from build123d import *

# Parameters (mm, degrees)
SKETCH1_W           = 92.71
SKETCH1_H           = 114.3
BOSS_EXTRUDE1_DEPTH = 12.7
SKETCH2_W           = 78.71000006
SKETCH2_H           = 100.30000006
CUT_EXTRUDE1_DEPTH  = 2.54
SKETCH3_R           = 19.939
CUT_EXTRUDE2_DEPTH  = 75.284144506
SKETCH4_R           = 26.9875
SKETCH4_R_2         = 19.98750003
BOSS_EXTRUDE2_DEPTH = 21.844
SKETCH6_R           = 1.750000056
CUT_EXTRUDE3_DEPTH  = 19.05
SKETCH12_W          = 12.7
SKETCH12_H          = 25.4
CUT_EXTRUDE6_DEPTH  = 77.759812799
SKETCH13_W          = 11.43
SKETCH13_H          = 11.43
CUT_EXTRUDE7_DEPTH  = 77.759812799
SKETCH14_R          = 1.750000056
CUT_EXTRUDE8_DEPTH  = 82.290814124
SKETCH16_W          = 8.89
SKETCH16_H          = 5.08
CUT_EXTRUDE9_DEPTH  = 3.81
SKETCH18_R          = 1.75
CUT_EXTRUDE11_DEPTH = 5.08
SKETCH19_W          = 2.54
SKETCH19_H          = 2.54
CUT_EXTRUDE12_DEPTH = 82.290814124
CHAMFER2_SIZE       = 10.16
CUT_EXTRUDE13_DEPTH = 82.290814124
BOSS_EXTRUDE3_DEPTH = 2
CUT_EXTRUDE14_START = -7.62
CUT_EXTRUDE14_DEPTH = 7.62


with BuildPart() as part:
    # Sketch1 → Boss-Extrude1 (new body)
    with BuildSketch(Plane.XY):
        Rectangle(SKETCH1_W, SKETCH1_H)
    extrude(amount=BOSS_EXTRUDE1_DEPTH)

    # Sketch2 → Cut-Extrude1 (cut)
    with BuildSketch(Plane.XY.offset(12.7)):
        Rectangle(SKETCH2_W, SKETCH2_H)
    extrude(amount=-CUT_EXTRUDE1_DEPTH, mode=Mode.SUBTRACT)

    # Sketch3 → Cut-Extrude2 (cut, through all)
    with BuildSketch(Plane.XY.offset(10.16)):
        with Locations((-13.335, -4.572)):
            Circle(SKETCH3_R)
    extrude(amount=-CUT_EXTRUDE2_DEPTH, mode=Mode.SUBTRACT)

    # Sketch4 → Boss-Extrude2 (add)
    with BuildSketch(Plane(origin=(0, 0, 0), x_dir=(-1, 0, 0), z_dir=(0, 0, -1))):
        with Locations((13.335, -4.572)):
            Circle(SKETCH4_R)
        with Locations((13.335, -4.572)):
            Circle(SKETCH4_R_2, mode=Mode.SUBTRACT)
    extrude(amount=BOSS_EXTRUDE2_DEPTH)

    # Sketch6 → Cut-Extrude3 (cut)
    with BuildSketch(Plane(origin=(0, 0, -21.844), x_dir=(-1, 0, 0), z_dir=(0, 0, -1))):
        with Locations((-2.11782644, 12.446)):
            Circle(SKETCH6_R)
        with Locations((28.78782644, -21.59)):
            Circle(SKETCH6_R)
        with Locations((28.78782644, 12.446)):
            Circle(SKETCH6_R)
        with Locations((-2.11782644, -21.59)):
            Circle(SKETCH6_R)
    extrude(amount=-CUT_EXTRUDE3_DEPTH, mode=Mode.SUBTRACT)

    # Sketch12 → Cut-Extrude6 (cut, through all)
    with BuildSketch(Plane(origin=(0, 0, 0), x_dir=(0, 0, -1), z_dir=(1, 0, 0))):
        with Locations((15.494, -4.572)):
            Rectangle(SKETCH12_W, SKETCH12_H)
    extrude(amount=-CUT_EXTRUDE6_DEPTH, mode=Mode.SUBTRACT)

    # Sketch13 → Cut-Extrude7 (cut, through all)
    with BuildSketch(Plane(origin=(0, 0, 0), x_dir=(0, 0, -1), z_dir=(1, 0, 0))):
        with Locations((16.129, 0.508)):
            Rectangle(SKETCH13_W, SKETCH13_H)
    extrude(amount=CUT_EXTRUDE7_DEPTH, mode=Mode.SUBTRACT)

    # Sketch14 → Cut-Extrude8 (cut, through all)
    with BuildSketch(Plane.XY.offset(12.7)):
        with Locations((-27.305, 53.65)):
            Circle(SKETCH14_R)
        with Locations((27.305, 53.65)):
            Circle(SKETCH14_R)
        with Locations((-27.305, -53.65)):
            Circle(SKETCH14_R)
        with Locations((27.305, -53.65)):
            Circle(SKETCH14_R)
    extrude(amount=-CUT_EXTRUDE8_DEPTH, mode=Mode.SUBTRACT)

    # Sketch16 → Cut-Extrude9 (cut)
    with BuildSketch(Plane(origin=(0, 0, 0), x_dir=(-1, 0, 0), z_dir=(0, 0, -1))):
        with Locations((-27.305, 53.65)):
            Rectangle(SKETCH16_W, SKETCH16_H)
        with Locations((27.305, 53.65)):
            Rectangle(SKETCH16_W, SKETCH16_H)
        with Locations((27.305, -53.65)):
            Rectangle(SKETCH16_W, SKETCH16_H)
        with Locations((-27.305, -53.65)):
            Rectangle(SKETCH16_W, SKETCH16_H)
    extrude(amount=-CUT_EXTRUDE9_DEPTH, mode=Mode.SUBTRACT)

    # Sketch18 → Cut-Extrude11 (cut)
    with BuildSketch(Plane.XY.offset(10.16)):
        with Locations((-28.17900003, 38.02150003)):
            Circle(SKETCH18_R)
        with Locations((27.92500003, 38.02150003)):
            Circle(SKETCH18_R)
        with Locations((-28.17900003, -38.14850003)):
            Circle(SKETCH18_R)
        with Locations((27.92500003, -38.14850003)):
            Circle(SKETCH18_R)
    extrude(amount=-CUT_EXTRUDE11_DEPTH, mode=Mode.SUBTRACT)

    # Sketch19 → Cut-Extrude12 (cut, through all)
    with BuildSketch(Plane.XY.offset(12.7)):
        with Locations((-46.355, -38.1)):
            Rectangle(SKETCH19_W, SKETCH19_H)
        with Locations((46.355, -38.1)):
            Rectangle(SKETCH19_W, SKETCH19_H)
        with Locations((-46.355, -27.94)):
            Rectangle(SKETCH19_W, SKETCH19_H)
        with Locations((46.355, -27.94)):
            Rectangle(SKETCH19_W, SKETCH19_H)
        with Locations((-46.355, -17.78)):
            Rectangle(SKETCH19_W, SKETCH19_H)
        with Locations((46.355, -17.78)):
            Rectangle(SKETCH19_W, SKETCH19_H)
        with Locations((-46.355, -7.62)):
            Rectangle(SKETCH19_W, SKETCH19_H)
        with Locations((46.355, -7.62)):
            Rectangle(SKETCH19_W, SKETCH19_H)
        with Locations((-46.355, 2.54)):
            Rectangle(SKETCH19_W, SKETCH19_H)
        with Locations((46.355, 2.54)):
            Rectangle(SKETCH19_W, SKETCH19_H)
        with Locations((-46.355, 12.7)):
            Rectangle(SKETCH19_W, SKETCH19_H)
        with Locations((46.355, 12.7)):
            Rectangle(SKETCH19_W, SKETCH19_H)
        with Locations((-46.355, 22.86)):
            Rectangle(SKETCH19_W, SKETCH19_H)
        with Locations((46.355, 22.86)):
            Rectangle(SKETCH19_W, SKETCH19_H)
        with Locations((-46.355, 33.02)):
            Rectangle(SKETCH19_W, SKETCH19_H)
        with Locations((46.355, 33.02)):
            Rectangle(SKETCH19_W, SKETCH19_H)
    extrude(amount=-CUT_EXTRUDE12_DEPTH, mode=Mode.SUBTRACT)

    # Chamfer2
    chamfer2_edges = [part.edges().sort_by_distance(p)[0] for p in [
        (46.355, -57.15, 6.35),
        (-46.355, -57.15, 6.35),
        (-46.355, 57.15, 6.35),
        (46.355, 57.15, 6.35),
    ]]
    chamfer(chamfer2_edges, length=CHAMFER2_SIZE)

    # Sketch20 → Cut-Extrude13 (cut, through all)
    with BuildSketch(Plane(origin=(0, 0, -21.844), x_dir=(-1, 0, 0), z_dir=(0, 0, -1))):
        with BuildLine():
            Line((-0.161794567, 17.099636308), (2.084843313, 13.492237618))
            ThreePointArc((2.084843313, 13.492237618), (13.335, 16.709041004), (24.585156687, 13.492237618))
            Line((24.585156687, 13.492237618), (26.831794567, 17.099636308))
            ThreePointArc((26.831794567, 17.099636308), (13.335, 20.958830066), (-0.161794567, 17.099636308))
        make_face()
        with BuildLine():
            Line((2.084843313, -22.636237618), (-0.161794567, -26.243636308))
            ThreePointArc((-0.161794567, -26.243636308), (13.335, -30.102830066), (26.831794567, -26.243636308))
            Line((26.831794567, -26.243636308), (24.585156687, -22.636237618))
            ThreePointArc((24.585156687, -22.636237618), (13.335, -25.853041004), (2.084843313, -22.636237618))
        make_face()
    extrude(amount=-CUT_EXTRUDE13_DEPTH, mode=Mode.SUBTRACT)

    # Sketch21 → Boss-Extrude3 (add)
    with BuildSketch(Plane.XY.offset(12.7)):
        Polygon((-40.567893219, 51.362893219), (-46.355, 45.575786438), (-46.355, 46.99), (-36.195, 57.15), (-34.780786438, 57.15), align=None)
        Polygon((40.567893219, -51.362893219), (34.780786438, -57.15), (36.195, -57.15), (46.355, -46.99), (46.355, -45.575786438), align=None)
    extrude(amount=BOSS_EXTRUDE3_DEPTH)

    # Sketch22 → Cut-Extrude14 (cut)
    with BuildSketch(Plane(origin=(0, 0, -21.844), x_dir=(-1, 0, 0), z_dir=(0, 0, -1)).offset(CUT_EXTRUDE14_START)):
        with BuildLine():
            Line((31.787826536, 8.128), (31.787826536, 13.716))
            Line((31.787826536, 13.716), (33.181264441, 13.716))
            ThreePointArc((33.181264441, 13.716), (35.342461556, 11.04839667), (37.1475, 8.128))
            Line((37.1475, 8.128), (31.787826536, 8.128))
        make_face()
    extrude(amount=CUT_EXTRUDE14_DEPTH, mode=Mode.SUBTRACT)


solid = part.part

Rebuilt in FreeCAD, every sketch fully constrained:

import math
import FreeCAD as App
import Part
import Sketcher

V = App.Vector
Q = App.Units.Quantity


def edges_at(feature, points):
    """Names of the edges that pass closest to the given points."""
    edges = feature.Shape.Edges
    near = lambda p: min(range(len(edges)), key=lambda i: edges[i].distToShape(Part.Vertex(*p))[0])
    return sorted({f"Edge{near(p) + 1}" for p in points})


def add_polygon(sketch, points):
    """Adds a closed chain of lines whose ends are joined by coincident constraints."""
    first, n = sketch.GeometryCount, len(points)
    for a, b in zip(points, points[1:] + points[:1]):
        sketch.addGeometry(Part.LineSegment(App.Vector(*a, 0), App.Vector(*b, 0)), False)
    for i in range(n):
        sketch.addConstraint(Sketcher.Constraint("Coincident", first + i, 2, first + (i + 1) % n, 1))

doc = App.newDocument("Part")
body = doc.addObject("PartDesign::Body", "Body")

# Sketch on XY plane
sketch1 = body.newObject("Sketcher::SketchObject", "Sketch")
sketch1.AttachmentSupport = (doc.getObject("XY_Plane"), [""])
sketch1.MapMode = "FlatFace"
add_polygon(sketch1, [(-46, 57), (-46, -57), (46, -57), (46, 57)])  # lines 0-3
sketch1.addConstraint(Sketcher.Constraint("Vertical", 0))
sketch1.addConstraint(Sketcher.Constraint("Horizontal", 1))
sketch1.addConstraint(Sketcher.Constraint("Vertical", 2))
sketch1.addConstraint(Sketcher.Constraint("Horizontal", 3))
sketch1.addConstraint(Sketcher.Constraint("Symmetric", 0, 2, 2, 2, -1, 1))
sketch1.addConstraint(Sketcher.Constraint("DistanceY", 0, 2, 0, 1, Q("4.5 in")))
sketch1.addConstraint(Sketcher.Constraint("DistanceX", 1, 1, 1, 2, Q("3.65 in")))
pad1 = body.newObject("PartDesign::Pad", "Pad")
pad1.Profile = sketch1
pad1.Length = Q("0.5 in")

# Sketch on XY plane
sketch2 = body.newObject("Sketcher::SketchObject", "Sketch001")
sketch2.AttachmentSupport = (doc.getObject("XY_Plane"), [""])
sketch2.MapMode = "FlatFace"
sketch2.AttachmentOffset = App.Placement(V(0, 0, 0.5 * 25.4), App.Rotation())
add_polygon(sketch2, [(-39, 50), (-39, -50), (39, -50), (39, 50)])  # lines 0-3
sketch2.addConstraint(Sketcher.Constraint("Vertical", 0))
sketch2.addConstraint(Sketcher.Constraint("Horizontal", 1))
sketch2.addConstraint(Sketcher.Constraint("Vertical", 2))
sketch2.addConstraint(Sketcher.Constraint("Horizontal", 3))
sketch2.addConstraint(Sketcher.Constraint("Symmetric", 0, 2, 2, 2, -1, 1))
sketch2.addConstraint(Sketcher.Constraint("DistanceX", 1, 1, 1, 2, 78.71))
sketch2.addConstraint(Sketcher.Constraint("DistanceY", 0, 2, 0, 1, 100.3))
pocket1 = body.newObject("PartDesign::Pocket", "Pocket")
pocket1.Profile = sketch2
pocket1.Length = Q("0.1 in")

# Sketch on XY plane
sketch3 = body.newObject("Sketcher::SketchObject", "Sketch002")
sketch3.AttachmentSupport = (doc.getObject("XY_Plane"), [""])
sketch3.MapMode = "FlatFace"
sketch3.AttachmentOffset = App.Placement(V(0, 0, 0.4 * 25.4), App.Rotation())
sketch3.addGeometry(Part.Circle(V(-13, -5, 0), V(0, 0, 1), 20), False)
sketch3.addConstraint(Sketcher.Constraint("Diameter", 0, Q("1.57 in")))
sketch3.addConstraint(Sketcher.Constraint("DistanceY", 0, 3, -1, 1, Q("0.18 in")))
sketch3.addConstraint(Sketcher.Constraint("DistanceX", 0, 3, -1, 1, Q("0.525 in")))
pocket2 = body.newObject("PartDesign::Pocket", "Pocket001")
pocket2.Profile = sketch3
pocket2.Type = "ThroughAll"

# Sketch on XY plane
sketch4 = body.newObject("Sketcher::SketchObject", "Sketch003")
sketch4.AttachmentSupport = (doc.getObject("XY_Plane"), [""])
sketch4.MapMode = "FlatFace"
sketch4.addGeometry(Part.Circle(V(-13, -5, 0), V(0, 0, 1), 27), False)
sketch4.addGeometry(Part.Circle(V(-13, -5, 0), V(0, 0, 1), 20), False)
sketch4.addConstraint(Sketcher.Constraint("Coincident", 1, 3, 0, 3))
sketch4.addConstraint(Sketcher.Constraint("Diameter", 0, Q("2.125 in")))
sketch4.addConstraint(Sketcher.Constraint("Diameter", 1, 39.975))
sketch4.addConstraint(Sketcher.Constraint("DistanceY", 0, 3, -1, 1, Q("0.18 in")))
sketch4.addConstraint(Sketcher.Constraint("DistanceX", 0, 3, -1, 1, Q("0.525 in")))
pad2 = body.newObject("PartDesign::Pad", "Pad001")
pad2.Profile = sketch4
pad2.Length = Q("0.86 in")
pad2.Reversed = True

# Sketch on XY plane
sketch5 = body.newObject("Sketcher::SketchObject", "Sketch004")
sketch5.AttachmentSupport = (doc.getObject("XY_Plane"), [""])
sketch5.MapMode = "FlatFace"
sketch5.AttachmentOffset = App.Placement(V(0, 0, -0.86 * 25.4), App.Rotation())
sketch5.addGeometry(Part.Circle(V(2.1, 12.4, 0), V(0, 0, 1), 1.8), False)
sketch5.addGeometry(Part.Circle(V(-28.8, -21.6, 0), V(0, 0, 1), 1.8), False)
sketch5.addGeometry(Part.Circle(V(-28.8, 12.4, 0), V(0, 0, 1), 1.8), False)
sketch5.addGeometry(Part.Circle(V(2.1, -21.6, 0), V(0, 0, 1), 1.8), False)
sketch5.addConstraint(Sketcher.Constraint("Equal", 0, 1))
sketch5.addConstraint(Sketcher.Constraint("Equal", 1, 2))
sketch5.addConstraint(Sketcher.Constraint("Equal", 2, 3))
sketch5.addConstraint(Sketcher.Constraint("Horizontal", 0, 3, 2, 3))
sketch5.addConstraint(Sketcher.Constraint("Horizontal", 1, 3, 3, 3))
sketch5.addConstraint(Sketcher.Constraint("Vertical", 1, 3, 2, 3))
sketch5.addConstraint(Sketcher.Constraint("Vertical", 0, 3, 3, 3))
sketch5.addConstraint(Sketcher.Constraint("Diameter", 0, 3.5))
sketch5.addConstraint(Sketcher.Constraint("DistanceY", -1, 1, 0, 3, Q("0.49 in")))
sketch5.addConstraint(Sketcher.Constraint("DistanceY", 1, 3, -1, 1, Q("0.85 in")))
sketch5.addConstraint(Sketcher.Constraint("DistanceX", -1, 1, 0, 3, 2.117826))
sketch5.addConstraint(Sketcher.Constraint("DistanceX", 1, 3, -1, 1, 28.787826))
pocket3 = body.newObject("PartDesign::Pocket", "Pocket002")
pocket3.Profile = sketch5
pocket3.Length = Q("0.75 in")
pocket3.Reversed = True

# Sketch on YZ plane
sketch6 = body.newObject("Sketcher::SketchObject", "Sketch005")
sketch6.AttachmentSupport = (doc.getObject("YZ_Plane"), [""])
sketch6.MapMode = "FlatFace"
add_polygon(sketch6, [(8, -9), (-17, -9), (-17, -22), (8, -22)])  # lines 0-3
sketch6.addConstraint(Sketcher.Constraint("Horizontal", 0))
sketch6.addConstraint(Sketcher.Constraint("Vertical", 1))
sketch6.addConstraint(Sketcher.Constraint("Horizontal", 2))
sketch6.addConstraint(Sketcher.Constraint("Vertical", 3))
sketch6.addConstraint(Sketcher.Constraint("DistanceX", 0, 2, 0, 1, Q("1 in")))
sketch6.addConstraint(Sketcher.Constraint("DistanceY", 1, 2, 1, 1, Q("0.5 in")))
sketch6.addConstraint(Sketcher.Constraint("DistanceX", 0, 2, -1, 1, Q("0.68 in")))
sketch6.addConstraint(Sketcher.Constraint("DistanceY", 0, 2, -1, 1, Q("0.36 in")))
pocket4 = body.newObject("PartDesign::Pocket", "Pocket003")
pocket4.Profile = sketch6
pocket4.Type = "ThroughAll"

# Sketch on YZ plane
sketch7 = body.newObject("Sketcher::SketchObject", "Sketch006")
sketch7.AttachmentSupport = (doc.getObject("YZ_Plane"), [""])
sketch7.MapMode = "FlatFace"
add_polygon(sketch7, [(6, -10), (-5, -10), (-5, -22), (6, -22)])  # lines 0-3
sketch7.addConstraint(Sketcher.Constraint("Horizontal", 0))
sketch7.addConstraint(Sketcher.Constraint("Vertical", 1))
sketch7.addConstraint(Sketcher.Constraint("Horizontal", 2))
sketch7.addConstraint(Sketcher.Constraint("Vertical", 3))
sketch7.addConstraint(Sketcher.Constraint("Equal", 2, 1))
sketch7.addConstraint(Sketcher.Constraint("DistanceX", 0, 2, 0, 1, Q("0.45 in")))
sketch7.addConstraint(Sketcher.Constraint("DistanceY", 0, 2, -1, 1, Q("0.41 in")))
sketch7.addConstraint(Sketcher.Constraint("DistanceX", 0, 2, -1, 1, Q("0.205 in")))
pocket5 = body.newObject("PartDesign::Pocket", "Pocket004")
pocket5.Profile = sketch7
pocket5.Type = "ThroughAll"
pocket5.Reversed = True

# Sketch on XY plane
sketch8 = body.newObject("Sketcher::SketchObject", "Sketch007")
sketch8.AttachmentSupport = (doc.getObject("XY_Plane"), [""])
sketch8.MapMode = "FlatFace"
sketch8.AttachmentOffset = App.Placement(V(0, 0, 0.5 * 25.4), App.Rotation())
sketch8.addGeometry(Part.Circle(V(-27.3, 53.6, 0), V(0, 0, 1), 1.8), False)
sketch8.addGeometry(Part.Circle(V(27.3, 53.6, 0), V(0, 0, 1), 1.8), False)
sketch8.addGeometry(Part.Circle(V(-27.3, -53.6, 0), V(0, 0, 1), 1.8), False)
sketch8.addGeometry(Part.Circle(V(27.3, -53.6, 0), V(0, 0, 1), 1.8), False)
sketch8.addConstraint(Sketcher.Constraint("Equal", 0, 1))
sketch8.addConstraint(Sketcher.Constraint("Equal", 1, 2))
sketch8.addConstraint(Sketcher.Constraint("Equal", 2, 3))
sketch8.addConstraint(Sketcher.Constraint("Symmetric", 1, 3, 2, 3, -1, 1))
sketch8.addConstraint(Sketcher.Constraint("Symmetric", 0, 3, 3, 3, -1, 1))
sketch8.addConstraint(Sketcher.Constraint("Symmetric", 0, 3, 1, 3, -2))
sketch8.addConstraint(Sketcher.Constraint("Diameter", 0, 3.5))
sketch8.addConstraint(Sketcher.Constraint("DistanceX", 0, 3, 1, 3, Q("2.15 in")))
sketch8.addConstraint(Sketcher.Constraint("DistanceY", -1, 1, 0, 3, 53.65))
pocket6 = body.newObject("PartDesign::Pocket", "Pocket005")
pocket6.Profile = sketch8
pocket6.Type = "ThroughAll"

# Sketch on XY plane
sketch9 = body.newObject("Sketcher::SketchObject", "Sketch008")
sketch9.AttachmentSupport = (doc.getObject("XY_Plane"), [""])
sketch9.MapMode = "FlatFace"
add_polygon(sketch9, [(32, 56), (32, 51), (23, 51), (23, 56)])  # lines 0-3
add_polygon(sketch9, [(-23, 56), (-23, 51), (-32, 51), (-32, 56)])  # lines 4-7
add_polygon(sketch9, [(-23, -51), (-23, -56), (-32, -56), (-32, -51)])  # lines 8-11
add_polygon(sketch9, [(32, -51), (32, -56), (23, -56), (23, -51)])  # lines 12-15
sketch9.addConstraint(Sketcher.Constraint("Vertical", 0))
sketch9.addConstraint(Sketcher.Constraint("Horizontal", 1))
sketch9.addConstraint(Sketcher.Constraint("Vertical", 2))
sketch9.addConstraint(Sketcher.Constraint("Horizontal", 3))
sketch9.addConstraint(Sketcher.Constraint("Vertical", 4))
sketch9.addConstraint(Sketcher.Constraint("Horizontal", 5))
sketch9.addConstraint(Sketcher.Constraint("Vertical", 6))
sketch9.addConstraint(Sketcher.Constraint("Horizontal", 7))
sketch9.addConstraint(Sketcher.Constraint("Vertical", 8))
sketch9.addConstraint(Sketcher.Constraint("Horizontal", 9))
sketch9.addConstraint(Sketcher.Constraint("Vertical", 10))
sketch9.addConstraint(Sketcher.Constraint("Horizontal", 11))
sketch9.addConstraint(Sketcher.Constraint("Vertical", 12))
sketch9.addConstraint(Sketcher.Constraint("Horizontal", 13))
sketch9.addConstraint(Sketcher.Constraint("Vertical", 14))
sketch9.addConstraint(Sketcher.Constraint("Horizontal", 15))
sketch9.addConstraint(Sketcher.Constraint("Symmetric", 2, 2, 8, 2, -1, 1))
sketch9.addConstraint(Sketcher.Constraint("Symmetric", 0, 2, 10, 2, -1, 1))
sketch9.addConstraint(Sketcher.Constraint("Symmetric", 6, 2, 12, 2, -1, 1))
sketch9.addConstraint(Sketcher.Constraint("Symmetric", 4, 2, 14, 2, -1, 1))
sketch9.addConstraint(Sketcher.Constraint("Symmetric", 1, 2, 4, 2, -2))
sketch9.addConstraint(Sketcher.Constraint("Symmetric", 3, 2, 6, 2, -2))
sketch9.addConstraint(Sketcher.Constraint("DistanceY", 0, 2, 0, 1, Q("0.2 in")))
sketch9.addConstraint(Sketcher.Constraint("DistanceX", 1, 2, 1, 1, Q("0.35 in")))
sketch9.addConstraint(Sketcher.Constraint("DistanceX", -1, 1, 1, 2, Q("0.9 in")))
sketch9.addConstraint(Sketcher.Constraint("DistanceY", -1, 1, 0, 2, 51.11))
pocket7 = body.newObject("PartDesign::Pocket", "Pocket006")
pocket7.Profile = sketch9
pocket7.Length = Q("0.15 in")
pocket7.Reversed = True

# Sketch on XY plane
sketch10 = body.newObject("Sketcher::SketchObject", "Sketch009")
sketch10.AttachmentSupport = (doc.getObject("XY_Plane"), [""])
sketch10.MapMode = "FlatFace"
sketch10.AttachmentOffset = App.Placement(V(0, 0, 0.4 * 25.4), App.Rotation())
sketch10.addGeometry(Part.Circle(V(-28.2, 38, 0), V(0, 0, 1), 1.8), False)
sketch10.addGeometry(Part.Circle(V(27.9, 38, 0), V(0, 0, 1), 1.8), False)
sketch10.addGeometry(Part.Circle(V(-28.2, -38.1, 0), V(0, 0, 1), 1.8), False)
sketch10.addGeometry(Part.Circle(V(27.9, -38.1, 0), V(0, 0, 1), 1.8), False)
sketch10.addConstraint(Sketcher.Constraint("Equal", 0, 1))
sketch10.addConstraint(Sketcher.Constraint("Equal", 1, 2))
sketch10.addConstraint(Sketcher.Constraint("Equal", 2, 3))
sketch10.addConstraint(Sketcher.Constraint("Horizontal", 0, 3, 1, 3))
sketch10.addConstraint(Sketcher.Constraint("Horizontal", 2, 3, 3, 3))
sketch10.addConstraint(Sketcher.Constraint("Vertical", 0, 3, 2, 3))
sketch10.addConstraint(Sketcher.Constraint("Vertical", 1, 3, 3, 3))
sketch10.addConstraint(Sketcher.Constraint("Diameter", 0, 3.5))
sketch10.addConstraint(Sketcher.Constraint("DistanceX", 0, 3, -1, 1, 28.179))
sketch10.addConstraint(Sketcher.Constraint("DistanceY", -1, 1, 0, 3, 38.0215))
sketch10.addConstraint(Sketcher.Constraint("DistanceX", -1, 1, 1, 3, 27.925))
sketch10.addConstraint(Sketcher.Constraint("DistanceY", 2, 3, -1, 1, 38.1485))
pocket8 = body.newObject("PartDesign::Pocket", "Pocket007")
pocket8.Profile = sketch10
pocket8.Length = Q("0.2 in")

# Sketch on XY plane
sketch11 = body.newObject("Sketcher::SketchObject", "Sketch010")
sketch11.AttachmentSupport = (doc.getObject("XY_Plane"), [""])
sketch11.MapMode = "FlatFace"
sketch11.AttachmentOffset = App.Placement(V(0, 0, 0.5 * 25.4), App.Rotation())
add_polygon(sketch11, [(-47.6, -36.8), (-47.6, -39.4), (-45.1, -39.4), (-45.1, -36.8)])  # lines 0-3
add_polygon(sketch11, [(45.1, -36.8), (45.1, -39.4), (47.6, -39.4), (47.6, -36.8)])  # lines 4-7
add_polygon(sketch11, [(-47.6, -26.7), (-47.6, -29.2), (-45.1, -29.2), (-45.1, -26.7)])  # lines 8-11
add_polygon(sketch11, [(45.1, -26.7), (45.1, -29.2), (47.6, -29.2), (47.6, -26.7)])  # lines 12-15
add_polygon(sketch11, [(-47.6, -16.5), (-47.6, -19.1), (-45.1, -19.1), (-45.1, -16.5)])  # lines 16-19
add_polygon(sketch11, [(45.1, -16.5), (45.1, -19.1), (47.6, -19.1), (47.6, -16.5)])  # lines 20-23
add_polygon(sketch11, [(-47.6, -6.3), (-47.6, -8.9), (-45.1, -8.9), (-45.1, -6.3)])  # lines 24-27
add_polygon(sketch11, [(45.1, -6.3), (45.1, -8.9), (47.6, -8.9), (47.6, -6.3)])  # lines 28-31
add_polygon(sketch11, [(-47.6, 3.8), (-47.6, 1.3), (-45.1, 1.3), (-45.1, 3.8)])  # lines 32-35
add_polygon(sketch11, [(45.1, 3.8), (45.1, 1.3), (47.6, 1.3), (47.6, 3.8)])  # lines 36-39
add_polygon(sketch11, [(-47.6, 14), (-47.6, 11.4), (-45.1, 11.4), (-45.1, 14)])  # lines 40-43
add_polygon(sketch11, [(45.1, 14), (45.1, 11.4), (47.6, 11.4), (47.6, 14)])  # lines 44-47
add_polygon(sketch11, [(-47.6, 24.1), (-47.6, 21.6), (-45.1, 21.6), (-45.1, 24.1)])  # lines 48-51
add_polygon(sketch11, [(45.1, 24.1), (45.1, 21.6), (47.6, 21.6), (47.6, 24.1)])  # lines 52-55
add_polygon(sketch11, [(-47.6, 34.3), (-47.6, 31.8), (-45.1, 31.8), (-45.1, 34.3)])  # lines 56-59
add_polygon(sketch11, [(45.1, 34.3), (45.1, 31.8), (47.6, 31.8), (47.6, 34.3)])  # lines 60-63
sketch11.addConstraint(Sketcher.Constraint("Vertical", 0))
sketch11.addConstraint(Sketcher.Constraint("Horizontal", 1))
sketch11.addConstraint(Sketcher.Constraint("Vertical", 2))
sketch11.addConstraint(Sketcher.Constraint("Horizontal", 3))
sketch11.addConstraint(Sketcher.Constraint("Vertical", 4))
sketch11.addConstraint(Sketcher.Constraint("Horizontal", 5))
sketch11.addConstraint(Sketcher.Constraint("Vertical", 6))
sketch11.addConstraint(Sketcher.Constraint("Horizontal", 7))
sketch11.addConstraint(Sketcher.Constraint("Vertical", 8))
sketch11.addConstraint(Sketcher.Constraint("Horizontal", 9))
sketch11.addConstraint(Sketcher.Constraint("Vertical", 10))
sketch11.addConstraint(Sketcher.Constraint("Horizontal", 11))
sketch11.addConstraint(Sketcher.Constraint("Vertical", 12))
sketch11.addConstraint(Sketcher.Constraint("Horizontal", 13))
sketch11.addConstraint(Sketcher.Constraint("Vertical", 14))
sketch11.addConstraint(Sketcher.Constraint("Horizontal", 15))
sketch11.addConstraint(Sketcher.Constraint("Vertical", 16))
sketch11.addConstraint(Sketcher.Constraint("Horizontal", 17))
sketch11.addConstraint(Sketcher.Constraint("Vertical", 18))
sketch11.addConstraint(Sketcher.Constraint("Horizontal", 19))
sketch11.addConstraint(Sketcher.Constraint("Vertical", 20))
sketch11.addConstraint(Sketcher.Constraint("Horizontal", 21))
sketch11.addConstraint(Sketcher.Constraint("Vertical", 22))
sketch11.addConstraint(Sketcher.Constraint("Horizontal", 23))
sketch11.addConstraint(Sketcher.Constraint("Vertical", 24))
sketch11.addConstraint(Sketcher.Constraint("Horizontal", 25))
sketch11.addConstraint(Sketcher.Constraint("Vertical", 26))
sketch11.addConstraint(Sketcher.Constraint("Horizontal", 27))
sketch11.addConstraint(Sketcher.Constraint("Vertical", 28))
sketch11.addConstraint(Sketcher.Constraint("Horizontal", 29))
sketch11.addConstraint(Sketcher.Constraint("Vertical", 30))
sketch11.addConstraint(Sketcher.Constraint("Horizontal", 31))
sketch11.addConstraint(Sketcher.Constraint("Vertical", 32))
sketch11.addConstraint(Sketcher.Constraint("Horizontal", 33))
sketch11.addConstraint(Sketcher.Constraint("Vertical", 34))
sketch11.addConstraint(Sketcher.Constraint("Horizontal", 35))
sketch11.addConstraint(Sketcher.Constraint("Vertical", 36))
sketch11.addConstraint(Sketcher.Constraint("Horizontal", 37))
sketch11.addConstraint(Sketcher.Constraint("Vertical", 38))
sketch11.addConstraint(Sketcher.Constraint("Horizontal", 39))
sketch11.addConstraint(Sketcher.Constraint("Vertical", 40))
sketch11.addConstraint(Sketcher.Constraint("Horizontal", 41))
sketch11.addConstraint(Sketcher.Constraint("Vertical", 42))
sketch11.addConstraint(Sketcher.Constraint("Horizontal", 43))
sketch11.addConstraint(Sketcher.Constraint("Vertical", 44))
sketch11.addConstraint(Sketcher.Constraint("Horizontal", 45))
sketch11.addConstraint(Sketcher.Constraint("Vertical", 46))
sketch11.addConstraint(Sketcher.Constraint("Horizontal", 47))
sketch11.addConstraint(Sketcher.Constraint("Vertical", 48))
sketch11.addConstraint(Sketcher.Constraint("Horizontal", 49))
sketch11.addConstraint(Sketcher.Constraint("Vertical", 50))
sketch11.addConstraint(Sketcher.Constraint("Horizontal", 51))
sketch11.addConstraint(Sketcher.Constraint("Vertical", 52))
sketch11.addConstraint(Sketcher.Constraint("Horizontal", 53))
sketch11.addConstraint(Sketcher.Constraint("Vertical", 54))
sketch11.addConstraint(Sketcher.Constraint("Horizontal", 55))
sketch11.addConstraint(Sketcher.Constraint("Vertical", 56))
sketch11.addConstraint(Sketcher.Constraint("Horizontal", 57))
sketch11.addConstraint(Sketcher.Constraint("Vertical", 58))
sketch11.addConstraint(Sketcher.Constraint("Horizontal", 59))
sketch11.addConstraint(Sketcher.Constraint("Vertical", 60))
sketch11.addConstraint(Sketcher.Constraint("Horizontal", 61))
sketch11.addConstraint(Sketcher.Constraint("Vertical", 62))
sketch11.addConstraint(Sketcher.Constraint("Horizontal", 63))
sketch11.addConstraint(Sketcher.Constraint("Symmetric", 1, 2, 4, 2, -2))
sketch11.addConstraint(Sketcher.Constraint("Symmetric", 3, 2, 6, 2, -2))
sketch11.addConstraint(Sketcher.Constraint("Symmetric", 9, 2, 12, 2, -2))
sketch11.addConstraint(Sketcher.Constraint("Symmetric", 11, 2, 14, 2, -2))
sketch11.addConstraint(Sketcher.Constraint("Symmetric", 17, 2, 20, 2, -2))
sketch11.addConstraint(Sketcher.Constraint("Symmetric", 19, 2, 22, 2, -2))
sketch11.addConstraint(Sketcher.Constraint("Symmetric", 25, 2, 28, 2, -2))
sketch11.addConstraint(Sketcher.Constraint("Symmetric", 27, 2, 30, 2, -2))
sketch11.addConstraint(Sketcher.Constraint("Symmetric", 33, 2, 36, 2, -2))
sketch11.addConstraint(Sketcher.Constraint("Symmetric", 35, 2, 38, 2, -2))
sketch11.addConstraint(Sketcher.Constraint("Symmetric", 41, 2, 44, 2, -2))
sketch11.addConstraint(Sketcher.Constraint("Symmetric", 43, 2, 46, 2, -2))
sketch11.addConstraint(Sketcher.Constraint("Symmetric", 49, 2, 52, 2, -2))
sketch11.addConstraint(Sketcher.Constraint("Symmetric", 51, 2, 54, 2, -2))
sketch11.addConstraint(Sketcher.Constraint("Symmetric", 57, 2, 60, 2, -2))
sketch11.addConstraint(Sketcher.Constraint("Symmetric", 59, 2, 62, 2, -2))
sketch11.addConstraint(Sketcher.Constraint("Vertical", 3, 2, 8, 2))
sketch11.addConstraint(Sketcher.Constraint("Vertical", 2, 2, 9, 2))
sketch11.addConstraint(Sketcher.Constraint("Vertical", 11, 2, 16, 2))
sketch11.addConstraint(Sketcher.Constraint("Vertical", 10, 2, 17, 2))
sketch11.addConstraint(Sketcher.Constraint("Vertical", 19, 2, 24, 2))
sketch11.addConstraint(Sketcher.Constraint("Vertical", 18, 2, 25, 2))
sketch11.addConstraint(Sketcher.Constraint("Vertical", 27, 2, 32, 2))
sketch11.addConstraint(Sketcher.Constraint("Vertical", 26, 2, 33, 2))
sketch11.addConstraint(Sketcher.Constraint("Vertical", 35, 2, 40, 2))
sketch11.addConstraint(Sketcher.Constraint("Vertical", 34, 2, 41, 2))
sketch11.addConstraint(Sketcher.Constraint("Vertical", 43, 2, 48, 2))
sketch11.addConstraint(Sketcher.Constraint("Vertical", 42, 2, 49, 2))
sketch11.addConstraint(Sketcher.Constraint("Vertical", 51, 2, 56, 2))
sketch11.addConstraint(Sketcher.Constraint("Vertical", 50, 2, 57, 2))
sketch11.addConstraint(Sketcher.Constraint("Equal", 63, 0))
sketch11.addConstraint(Sketcher.Constraint("Equal", 6, 8))
sketch11.addConstraint(Sketcher.Constraint("Equal", 14, 16))
sketch11.addConstraint(Sketcher.Constraint("Equal", 22, 24))
sketch11.addConstraint(Sketcher.Constraint("Equal", 30, 32))
sketch11.addConstraint(Sketcher.Constraint("Equal", 38, 40))
sketch11.addConstraint(Sketcher.Constraint("Equal", 46, 48))
sketch11.addConstraint(Sketcher.Constraint("Equal", 54, 56))
sketch11.addConstraint(Sketcher.Constraint("DistanceX", 1, 1, 1, 2, Q("0.1 in")))
sketch11.addConstraint(Sketcher.Constraint("DistanceY", 0, 2, -1, 1, Q("1.55 in")))
sketch11.addConstraint(Sketcher.Constraint("DistanceY", 8, 2, -1, 1, Q("1.15 in")))
sketch11.addConstraint(Sketcher.Constraint("DistanceY", 16, 2, -1, 1, Q("0.75 in")))
sketch11.addConstraint(Sketcher.Constraint("DistanceY", 24, 2, -1, 1, Q("0.35 in")))
sketch11.addConstraint(Sketcher.Constraint("DistanceY", -1, 1, 32, 2, Q("0.05 in")))
sketch11.addConstraint(Sketcher.Constraint("DistanceY", -1, 1, 40, 2, Q("0.45 in")))
sketch11.addConstraint(Sketcher.Constraint("DistanceY", -1, 1, 48, 2, Q("0.85 in")))
sketch11.addConstraint(Sketcher.Constraint("DistanceY", -1, 1, 56, 2, Q("1.25 in")))
sketch11.addConstraint(Sketcher.Constraint("DistanceX", 0, 2, -1, 1, Q("1.875 in")))
pocket9 = body.newObject("PartDesign::Pocket", "Pocket008")
pocket9.Profile = sketch11
pocket9.Type = "ThroughAll"
doc.recompute()

chamfer = body.newObject("PartDesign::Chamfer", "Chamfer")
chamfer.Base = (pocket9, edges_at(pocket9, [
    (46.355, -57.15, 6.35),
    (-46.355, -57.15, 6.35),
    (-46.355, 57.15, 6.35),
    (46.355, 57.15, 6.35),
]))
chamfer.Size = Q("0.4 in")

# Sketch on XY plane
sketch12 = body.newObject("Sketcher::SketchObject", "Sketch011")
sketch12.AttachmentSupport = (doc.getObject("XY_Plane"), [""])
sketch12.MapMode = "FlatFace"
sketch12.AttachmentOffset = App.Placement(V(0, 0, -0.86 * 25.4), App.Rotation())
sketch12.addGeometry(Part.LineSegment(V(0.2, 17.1, 0), V(-2.1, 13.5, 0)), False)
sketch12.addGeometry(Part.ArcOfCircle(Part.Circle(V(-13.3, -4.6, 0), V(0, 0, 1), 21.3), math.radians(58), math.radians(122)), False)
sketch12.addGeometry(Part.LineSegment(V(-24.6, 13.5, 0), V(-26.8, 17.1, 0)), False)
sketch12.addGeometry(Part.ArcOfCircle(Part.Circle(V(-13.3, -4.6, 0), V(0, 0, 1), 25.5), math.radians(58), math.radians(122)), False)
sketch12.addGeometry(Part.LineSegment(V(-2.1, -22.6, 0), V(0.2, -26.2, 0)), False)
sketch12.addGeometry(Part.ArcOfCircle(Part.Circle(V(-13.3, -4.6, 0), V(0, 0, 1), 25.5), math.radians(-122), math.radians(-58)), False)
sketch12.addGeometry(Part.LineSegment(V(-26.8, -26.2, 0), V(-24.6, -22.6, 0)), False)
sketch12.addGeometry(Part.ArcOfCircle(Part.Circle(V(-13.3, -4.6, 0), V(0, 0, 1), 21.3), math.radians(-122), math.radians(-58)), False)
sketch12.addConstraint(Sketcher.Constraint("Coincident", 0, 2, 1, 1))
sketch12.addConstraint(Sketcher.Constraint("Coincident", 1, 2, 2, 1))
sketch12.addConstraint(Sketcher.Constraint("Coincident", 2, 2, 3, 2))
sketch12.addConstraint(Sketcher.Constraint("Coincident", 3, 1, 0, 1))
sketch12.addConstraint(Sketcher.Constraint("Coincident", 4, 2, 5, 2))
sketch12.addConstraint(Sketcher.Constraint("Coincident", 5, 1, 6, 1))
sketch12.addConstraint(Sketcher.Constraint("Coincident", 6, 2, 7, 1))
sketch12.addConstraint(Sketcher.Constraint("Coincident", 7, 2, 4, 1))
sketch12.addConstraint(Sketcher.Constraint("Coincident", 3, 3, 1, 3))
sketch12.addConstraint(Sketcher.Constraint("Coincident", 5, 3, 1, 3))
sketch12.addConstraint(Sketcher.Constraint("Coincident", 7, 3, 1, 3))
sketch12.addConstraint(Sketcher.Constraint("Equal", 3, 5))
sketch12.addConstraint(Sketcher.Constraint("Equal", 1, 7))
sketch12.addConstraint(Sketcher.Constraint("Parallel", 2, 4))
sketch12.addConstraint(Sketcher.Constraint("Parallel", 0, 6))
sketch12.addConstraint(Sketcher.Constraint("Horizontal", 0, 2, 1, 2))
sketch12.addConstraint(Sketcher.Constraint("Horizontal", 2, 2, 3, 1))
sketch12.addConstraint(Sketcher.Constraint("Horizontal", 4, 2, 5, 1))
sketch12.addConstraint(Sketcher.Constraint("Vertical", 3, 1, 4, 2))
sketch12.addConstraint(Sketcher.Constraint("DistanceY", 1, 3, -1, 1, Q("0.18 in")))
sketch12.addConstraint(Sketcher.Constraint("DistanceX", 1, 3, -1, 1, Q("0.525 in")))
sketch12.addConstraint(Sketcher.Constraint("Radius", 1, 21.281041))
sketch12.addConstraint(Sketcher.Constraint("Radius", 3, 25.53083))
sketch12.addConstraint(Sketcher.Constraint("DistanceY", 1, 2, 2, 2, 3.607399))
sketch12.addConstraint(Sketcher.Constraint("DistanceX", 2, 2, 0, 2, 24.746951))
pocket10 = body.newObject("PartDesign::Pocket", "Pocket009")
pocket10.Profile = sketch12
pocket10.Type = "ThroughAll"
pocket10.Reversed = True

# Sketch on XY plane
sketch13 = body.newObject("Sketcher::SketchObject", "Sketch012")
sketch13.AttachmentSupport = (doc.getObject("XY_Plane"), [""])
sketch13.MapMode = "FlatFace"
sketch13.AttachmentOffset = App.Placement(V(0, 0, 0.5 * 25.4), App.Rotation())
add_polygon(sketch13, [(-46.4, 45.6), (-34.8, 57.1), (-36.2, 57.1), (-46.4, 47)])  # lines 0-3
add_polygon(sketch13, [(34.8, -57.1), (36.2, -57.1), (46.4, -47), (46.4, -45.6)])  # lines 4-7
sketch13.addConstraint(Sketcher.Constraint("Horizontal", 1))
sketch13.addConstraint(Sketcher.Constraint("Vertical", 3))
sketch13.addConstraint(Sketcher.Constraint("Horizontal", 4))
sketch13.addConstraint(Sketcher.Constraint("Vertical", 6))
sketch13.addConstraint(Sketcher.Constraint("Symmetric", 1, 2, 4, 2, -1, 1))
sketch13.addConstraint(Sketcher.Constraint("Symmetric", 2, 2, 5, 2, -1, 1))
sketch13.addConstraint(Sketcher.Constraint("Parallel", 0, 2))
sketch13.addConstraint(Sketcher.Constraint("Parallel", 5, 7))
sketch13.addConstraint(Sketcher.Constraint("Equal", 1, 4))
sketch13.addConstraint(Sketcher.Constraint("Equal", 4, 3))
sketch13.addConstraint(Sketcher.Constraint("DistanceX", 2, 2, 1, 2, Q("0.4 in")))
sketch13.addConstraint(Sketcher.Constraint("DistanceY", 4, 2, 2, 2, Q("4.1 in")))
sketch13.addConstraint(Sketcher.Constraint("DistanceX", 3, 2, 4, 2, Q("3.25 in")))
sketch13.addConstraint(Sketcher.Constraint("Distance", 0, 16.36841))
pad3 = body.newObject("PartDesign::Pad", "Pad002")
pad3.Profile = sketch13
pad3.Length = 2

# Sketch on XY plane
sketch14 = body.newObject("Sketcher::SketchObject", "Sketch013")
sketch14.AttachmentSupport = (doc.getObject("XY_Plane"), [""])
sketch14.MapMode = "FlatFace"
sketch14.AttachmentOffset = App.Placement(V(0, 0, -0.56 * 25.4), App.Rotation())
sketch14.addGeometry(Part.LineSegment(V(-31.8, 13.7, 0), V(-31.8, 8.1, 0)), False)
sketch14.addGeometry(Part.LineSegment(V(-31.8, 8.1, 0), V(-37.1, 8.1, 0)), False)
sketch14.addGeometry(Part.ArcOfCircle(Part.Circle(V(-13.3, -4.6, 0), V(0, 0, 1), 27), math.radians(137.34), math.radians(151.93)), False)
sketch14.addGeometry(Part.LineSegment(V(-33.2, 13.7, 0), V(-31.8, 13.7, 0)), False)
sketch14.addConstraint(Sketcher.Constraint("Coincident", 0, 2, 1, 1))
sketch14.addConstraint(Sketcher.Constraint("Coincident", 1, 2, 2, 2))
sketch14.addConstraint(Sketcher.Constraint("Coincident", 2, 1, 3, 1))
sketch14.addConstraint(Sketcher.Constraint("Coincident", 3, 2, 0, 1))
sketch14.addConstraint(Sketcher.Constraint("Vertical", 0))
sketch14.addConstraint(Sketcher.Constraint("Horizontal", 1))
sketch14.addConstraint(Sketcher.Constraint("Horizontal", 3))
sketch14.addConstraint(Sketcher.Constraint("Radius", 2, Q("1.0625 in")))
sketch14.addConstraint(Sketcher.Constraint("DistanceY", 0, 2, 0, 1, Q("0.22 in")))
sketch14.addConstraint(Sketcher.Constraint("DistanceY", 2, 3, 0, 2, Q("0.5 in")))
sketch14.addConstraint(Sketcher.Constraint("DistanceY", 2, 3, -1, 1, Q("0.18 in")))
sketch14.addConstraint(Sketcher.Constraint("DistanceX", 2, 3, -1, 1, Q("0.525 in")))
sketch14.addConstraint(Sketcher.Constraint("DistanceX", 1, 2, 1, 1, 5.359673))
pocket11 = body.newObject("PartDesign::Pocket", "Pocket010")
pocket11.Profile = sketch14
pocket11.Length = Q("0.3 in")

doc.recompute()
